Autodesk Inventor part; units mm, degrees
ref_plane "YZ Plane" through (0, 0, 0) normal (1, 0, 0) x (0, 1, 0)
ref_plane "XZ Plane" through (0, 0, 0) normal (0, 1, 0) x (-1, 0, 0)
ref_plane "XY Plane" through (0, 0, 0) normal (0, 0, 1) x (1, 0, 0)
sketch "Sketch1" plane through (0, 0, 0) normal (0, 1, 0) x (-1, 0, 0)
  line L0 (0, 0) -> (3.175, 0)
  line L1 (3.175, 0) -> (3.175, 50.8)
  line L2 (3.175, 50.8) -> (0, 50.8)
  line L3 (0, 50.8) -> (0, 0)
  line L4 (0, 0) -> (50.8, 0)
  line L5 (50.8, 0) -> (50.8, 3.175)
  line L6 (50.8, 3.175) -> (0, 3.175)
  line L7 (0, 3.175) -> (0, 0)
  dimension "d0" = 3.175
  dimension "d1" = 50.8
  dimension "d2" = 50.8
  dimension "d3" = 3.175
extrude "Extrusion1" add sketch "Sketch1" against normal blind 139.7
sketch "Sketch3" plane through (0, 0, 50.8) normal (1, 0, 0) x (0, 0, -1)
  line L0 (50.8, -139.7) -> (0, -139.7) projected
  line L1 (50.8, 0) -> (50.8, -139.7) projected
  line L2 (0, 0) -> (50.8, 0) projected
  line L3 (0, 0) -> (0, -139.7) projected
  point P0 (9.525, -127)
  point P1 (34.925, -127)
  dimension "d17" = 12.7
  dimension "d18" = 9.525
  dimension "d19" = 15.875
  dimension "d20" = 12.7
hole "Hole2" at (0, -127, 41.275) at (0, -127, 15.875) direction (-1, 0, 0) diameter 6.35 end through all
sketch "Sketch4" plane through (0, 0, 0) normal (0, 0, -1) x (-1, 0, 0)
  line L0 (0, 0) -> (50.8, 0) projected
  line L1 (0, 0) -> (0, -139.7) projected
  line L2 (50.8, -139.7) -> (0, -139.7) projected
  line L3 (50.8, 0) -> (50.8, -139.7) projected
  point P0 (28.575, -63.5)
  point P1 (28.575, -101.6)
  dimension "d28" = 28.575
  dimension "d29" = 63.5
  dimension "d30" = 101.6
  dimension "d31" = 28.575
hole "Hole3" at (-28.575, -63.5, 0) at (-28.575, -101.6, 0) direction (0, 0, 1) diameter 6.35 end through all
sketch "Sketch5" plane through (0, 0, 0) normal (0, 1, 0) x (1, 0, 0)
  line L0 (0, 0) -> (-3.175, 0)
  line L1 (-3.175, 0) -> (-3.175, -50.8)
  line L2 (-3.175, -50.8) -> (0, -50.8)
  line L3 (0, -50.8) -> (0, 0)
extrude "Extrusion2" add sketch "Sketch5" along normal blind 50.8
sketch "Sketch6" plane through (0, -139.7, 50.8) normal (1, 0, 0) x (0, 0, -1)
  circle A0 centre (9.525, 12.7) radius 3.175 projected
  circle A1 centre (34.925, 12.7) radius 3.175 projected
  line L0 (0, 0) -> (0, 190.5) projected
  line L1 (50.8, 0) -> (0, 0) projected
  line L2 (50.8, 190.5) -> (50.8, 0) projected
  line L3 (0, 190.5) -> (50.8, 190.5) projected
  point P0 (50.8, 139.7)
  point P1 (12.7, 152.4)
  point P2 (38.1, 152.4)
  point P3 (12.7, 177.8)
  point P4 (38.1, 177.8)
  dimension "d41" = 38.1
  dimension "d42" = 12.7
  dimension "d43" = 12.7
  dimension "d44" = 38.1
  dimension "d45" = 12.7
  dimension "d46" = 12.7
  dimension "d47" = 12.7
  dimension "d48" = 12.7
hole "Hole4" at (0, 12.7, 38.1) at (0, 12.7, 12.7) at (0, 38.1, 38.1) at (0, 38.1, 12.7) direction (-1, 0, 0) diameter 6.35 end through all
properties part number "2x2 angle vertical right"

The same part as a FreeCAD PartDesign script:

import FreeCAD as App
import Part
import Sketcher
from FreeCAD import Vector
Q = App.Units.Quantity


def add_polygon(sketch, points):
    """Adds a closed chain of lines whose ends are joined by coincident constraints."""
    first, n = sketch.GeometryCount, len(points)
    for a, b in zip(points, points[1:] + points[:1]):
        sketch.addGeometry(Part.LineSegment(App.Vector(*a, 0), App.Vector(*b, 0)), False)
    for i in range(n):
        sketch.addConstraint(Sketcher.Constraint("Coincident", first + i, 2, first + (i + 1) % n, 1))

doc = App.newDocument("Part")
body = doc.addObject("PartDesign::Body", "Body")

sketch1 = body.newObject("Sketcher::SketchObject", "Sketch")
sketch1.AttachmentSupport = (doc.getObject("XZ_Plane"), [""])
sketch1.MapMode = "FlatFace"
add_polygon(sketch1, [(0, 0), (-50.8, 0), (-50.8, 3.2), (-3.2, 3.2), (-3.2, 50.8), (0, 50.8)])
sketch1.addConstraint([
    Sketcher.Constraint("Horizontal", 0),
    Sketcher.Constraint("Vertical", 1),
    Sketcher.Constraint("Horizontal", 2),
    Sketcher.Constraint("Vertical", 3),
    Sketcher.Constraint("Horizontal", 4),
    Sketcher.Constraint("Vertical", 5),
    Sketcher.Constraint("Coincident", 5, 2, -1, 1),
    Sketcher.Constraint("Equal", 4, 1),
    Sketcher.Constraint("Equal", 2, 3),
    Sketcher.Constraint("DistanceX", 0, 2, 0, 1, Q("2 in")),
    Sketcher.Constraint("DistanceX", 4, 1, 4, 2, Q("0.125 in")),
])
pad1 = body.newObject("PartDesign::Pad", "Pad")
pad1.Profile = sketch1
pad1.Length = Q("5.5 in")

sketch2 = body.newObject("Sketcher::SketchObject", "Sketch001")
sketch2.AttachmentSupport = (doc.getObject("YZ_Plane"), [""])
sketch2.MapMode = "FlatFace"
sketch2.addGeometry([
    Part.Circle(Vector(-127, 41.3, 0), Vector(0, 0, 1), 3.2),
    Part.Circle(Vector(-127, 15.9, 0), Vector(0, 0, 1), 3.2),
], False)
sketch2.addConstraint([
    Sketcher.Constraint("Equal", 0, 1),
    Sketcher.Constraint("Vertical", 0, 3, 1, 3),
    Sketcher.Constraint("Diameter", 0, Q("0.25 in")),
    Sketcher.Constraint("DistanceX", 0, 3, -1, 1, Q("5 in")),
    Sketcher.Constraint("DistanceY", 1, 3, 0, 3, Q("1 in")),
    Sketcher.Constraint("DistanceY", -1, 1, 0, 3, Q("1.625 in")),
])
doc.recompute()
hole = body.newObject("PartDesign::Hole", "Hole")
hole.Profile = sketch2
hole.ThreadType = "None"
hole.Diameter = Q("0.25 in")
hole.DepthType = "ThroughAll"

sketch3 = body.newObject("Sketcher::SketchObject", "Sketch002")
sketch3.AttachmentSupport = (doc.getObject("XY_Plane"), [""])
sketch3.MapMode = "FlatFace"
sketch3.addGeometry([
    Part.Circle(Vector(-28.6, -63.5, 0), Vector(0, 0, 1), 3.2),
    Part.Circle(Vector(-28.6, -101.6, 0), Vector(0, 0, 1), 3.2),
], False)
sketch3.addConstraint([
    Sketcher.Constraint("Equal", 0, 1),
    Sketcher.Constraint("Vertical", 0, 3, 1, 3),
    Sketcher.Constraint("Diameter", 0, Q("0.25 in")),
    Sketcher.Constraint("DistanceY", 1, 3, -1, 1, Q("4 in")),
    Sketcher.Constraint("DistanceY", 0, 3, -1, 1, Q("2.5 in")),
    Sketcher.Constraint("DistanceX", 0, 3, -1, 1, Q("1.125 in")),
])
doc.recompute()
hole2 = body.newObject("PartDesign::Hole", "Hole001")
hole2.Profile = sketch3
hole2.ThreadType = "None"
hole2.Diameter = Q("0.25 in")
hole2.DepthType = "ThroughAll"
hole2.Reversed = True

sketch4 = body.newObject("Sketcher::SketchObject", "Sketch003")
sketch4.AttachmentSupport = (doc.getObject("XZ_Plane"), [""])
sketch4.MapMode = "FlatFace"
add_polygon(sketch4, [(0, 50.8), (0, 0), (-3.2, 0), (-3.2, 50.8)])
sketch4.addConstraint([
    Sketcher.Constraint("Vertical", 0),
    Sketcher.Constraint("Horizontal", 1),
    Sketcher.Constraint("Vertical", 2),
    Sketcher.Constraint("Horizontal", 3),
    Sketcher.Constraint("Coincident", 0, 2, -1, 1),
    Sketcher.Constraint("DistanceY", 0, 2, 0, 1, Q("2 in")),
    Sketcher.Constraint("DistanceX", 1, 2, 1, 1, Q("0.125 in")),
])
pad2 = body.newObject("PartDesign::Pad", "Pad001")
pad2.Profile = sketch4
pad2.Length = Q("2 in")
pad2.Reversed = True

sketch5 = body.newObject("Sketcher::SketchObject", "Sketch004")
sketch5.AttachmentSupport = (doc.getObject("YZ_Plane"), [""])
sketch5.MapMode = "FlatFace"
sketch5.addGeometry([
    Part.Circle(Vector(12.7, 38.1, 0), Vector(0, 0, 1), 3.2),
    Part.Circle(Vector(12.7, 12.7, 0), Vector(0, 0, 1), 3.2),
    Part.Circle(Vector(38.1, 38.1, 0), Vector(0, 0, 1), 3.2),
    Part.Circle(Vector(38.1, 12.7, 0), Vector(0, 0, 1), 3.2),
], False)
sketch5.addConstraint([
    Sketcher.Constraint("Equal", 0, 1),
    Sketcher.Constraint("Equal", 1, 2),
    Sketcher.Constraint("Equal", 2, 3),
    Sketcher.Constraint("Horizontal", 0, 3, 2, 3),
    Sketcher.Constraint("Horizontal", 1, 3, 3, 3),
    Sketcher.Constraint("Vertical", 0, 3, 1, 3),
    Sketcher.Constraint("Vertical", 2, 3, 3, 3),
    Sketcher.Constraint("Diameter", 0, Q("0.25 in")),
    Sketcher.Constraint("DistanceY", 1, 3, 0, 3, Q("1 in")),
    Sketcher.Constraint("DistanceX", 0, 3, 2, 3, Q("1 in")),
    Sketcher.Constraint("DistanceX", -1, 1, 0, 3, Q("0.5 in")),
    Sketcher.Constraint("DistanceY", -1, 1, 0, 3, Q("1.5 in")),
])
doc.recompute()
hole3 = body.newObject("PartDesign::Hole", "Hole002")
hole3.Profile = sketch5
hole3.ThreadType = "None"
hole3.Diameter = Q("0.25 in")
hole3.DepthType = "ThroughAll"

doc.recompute()
